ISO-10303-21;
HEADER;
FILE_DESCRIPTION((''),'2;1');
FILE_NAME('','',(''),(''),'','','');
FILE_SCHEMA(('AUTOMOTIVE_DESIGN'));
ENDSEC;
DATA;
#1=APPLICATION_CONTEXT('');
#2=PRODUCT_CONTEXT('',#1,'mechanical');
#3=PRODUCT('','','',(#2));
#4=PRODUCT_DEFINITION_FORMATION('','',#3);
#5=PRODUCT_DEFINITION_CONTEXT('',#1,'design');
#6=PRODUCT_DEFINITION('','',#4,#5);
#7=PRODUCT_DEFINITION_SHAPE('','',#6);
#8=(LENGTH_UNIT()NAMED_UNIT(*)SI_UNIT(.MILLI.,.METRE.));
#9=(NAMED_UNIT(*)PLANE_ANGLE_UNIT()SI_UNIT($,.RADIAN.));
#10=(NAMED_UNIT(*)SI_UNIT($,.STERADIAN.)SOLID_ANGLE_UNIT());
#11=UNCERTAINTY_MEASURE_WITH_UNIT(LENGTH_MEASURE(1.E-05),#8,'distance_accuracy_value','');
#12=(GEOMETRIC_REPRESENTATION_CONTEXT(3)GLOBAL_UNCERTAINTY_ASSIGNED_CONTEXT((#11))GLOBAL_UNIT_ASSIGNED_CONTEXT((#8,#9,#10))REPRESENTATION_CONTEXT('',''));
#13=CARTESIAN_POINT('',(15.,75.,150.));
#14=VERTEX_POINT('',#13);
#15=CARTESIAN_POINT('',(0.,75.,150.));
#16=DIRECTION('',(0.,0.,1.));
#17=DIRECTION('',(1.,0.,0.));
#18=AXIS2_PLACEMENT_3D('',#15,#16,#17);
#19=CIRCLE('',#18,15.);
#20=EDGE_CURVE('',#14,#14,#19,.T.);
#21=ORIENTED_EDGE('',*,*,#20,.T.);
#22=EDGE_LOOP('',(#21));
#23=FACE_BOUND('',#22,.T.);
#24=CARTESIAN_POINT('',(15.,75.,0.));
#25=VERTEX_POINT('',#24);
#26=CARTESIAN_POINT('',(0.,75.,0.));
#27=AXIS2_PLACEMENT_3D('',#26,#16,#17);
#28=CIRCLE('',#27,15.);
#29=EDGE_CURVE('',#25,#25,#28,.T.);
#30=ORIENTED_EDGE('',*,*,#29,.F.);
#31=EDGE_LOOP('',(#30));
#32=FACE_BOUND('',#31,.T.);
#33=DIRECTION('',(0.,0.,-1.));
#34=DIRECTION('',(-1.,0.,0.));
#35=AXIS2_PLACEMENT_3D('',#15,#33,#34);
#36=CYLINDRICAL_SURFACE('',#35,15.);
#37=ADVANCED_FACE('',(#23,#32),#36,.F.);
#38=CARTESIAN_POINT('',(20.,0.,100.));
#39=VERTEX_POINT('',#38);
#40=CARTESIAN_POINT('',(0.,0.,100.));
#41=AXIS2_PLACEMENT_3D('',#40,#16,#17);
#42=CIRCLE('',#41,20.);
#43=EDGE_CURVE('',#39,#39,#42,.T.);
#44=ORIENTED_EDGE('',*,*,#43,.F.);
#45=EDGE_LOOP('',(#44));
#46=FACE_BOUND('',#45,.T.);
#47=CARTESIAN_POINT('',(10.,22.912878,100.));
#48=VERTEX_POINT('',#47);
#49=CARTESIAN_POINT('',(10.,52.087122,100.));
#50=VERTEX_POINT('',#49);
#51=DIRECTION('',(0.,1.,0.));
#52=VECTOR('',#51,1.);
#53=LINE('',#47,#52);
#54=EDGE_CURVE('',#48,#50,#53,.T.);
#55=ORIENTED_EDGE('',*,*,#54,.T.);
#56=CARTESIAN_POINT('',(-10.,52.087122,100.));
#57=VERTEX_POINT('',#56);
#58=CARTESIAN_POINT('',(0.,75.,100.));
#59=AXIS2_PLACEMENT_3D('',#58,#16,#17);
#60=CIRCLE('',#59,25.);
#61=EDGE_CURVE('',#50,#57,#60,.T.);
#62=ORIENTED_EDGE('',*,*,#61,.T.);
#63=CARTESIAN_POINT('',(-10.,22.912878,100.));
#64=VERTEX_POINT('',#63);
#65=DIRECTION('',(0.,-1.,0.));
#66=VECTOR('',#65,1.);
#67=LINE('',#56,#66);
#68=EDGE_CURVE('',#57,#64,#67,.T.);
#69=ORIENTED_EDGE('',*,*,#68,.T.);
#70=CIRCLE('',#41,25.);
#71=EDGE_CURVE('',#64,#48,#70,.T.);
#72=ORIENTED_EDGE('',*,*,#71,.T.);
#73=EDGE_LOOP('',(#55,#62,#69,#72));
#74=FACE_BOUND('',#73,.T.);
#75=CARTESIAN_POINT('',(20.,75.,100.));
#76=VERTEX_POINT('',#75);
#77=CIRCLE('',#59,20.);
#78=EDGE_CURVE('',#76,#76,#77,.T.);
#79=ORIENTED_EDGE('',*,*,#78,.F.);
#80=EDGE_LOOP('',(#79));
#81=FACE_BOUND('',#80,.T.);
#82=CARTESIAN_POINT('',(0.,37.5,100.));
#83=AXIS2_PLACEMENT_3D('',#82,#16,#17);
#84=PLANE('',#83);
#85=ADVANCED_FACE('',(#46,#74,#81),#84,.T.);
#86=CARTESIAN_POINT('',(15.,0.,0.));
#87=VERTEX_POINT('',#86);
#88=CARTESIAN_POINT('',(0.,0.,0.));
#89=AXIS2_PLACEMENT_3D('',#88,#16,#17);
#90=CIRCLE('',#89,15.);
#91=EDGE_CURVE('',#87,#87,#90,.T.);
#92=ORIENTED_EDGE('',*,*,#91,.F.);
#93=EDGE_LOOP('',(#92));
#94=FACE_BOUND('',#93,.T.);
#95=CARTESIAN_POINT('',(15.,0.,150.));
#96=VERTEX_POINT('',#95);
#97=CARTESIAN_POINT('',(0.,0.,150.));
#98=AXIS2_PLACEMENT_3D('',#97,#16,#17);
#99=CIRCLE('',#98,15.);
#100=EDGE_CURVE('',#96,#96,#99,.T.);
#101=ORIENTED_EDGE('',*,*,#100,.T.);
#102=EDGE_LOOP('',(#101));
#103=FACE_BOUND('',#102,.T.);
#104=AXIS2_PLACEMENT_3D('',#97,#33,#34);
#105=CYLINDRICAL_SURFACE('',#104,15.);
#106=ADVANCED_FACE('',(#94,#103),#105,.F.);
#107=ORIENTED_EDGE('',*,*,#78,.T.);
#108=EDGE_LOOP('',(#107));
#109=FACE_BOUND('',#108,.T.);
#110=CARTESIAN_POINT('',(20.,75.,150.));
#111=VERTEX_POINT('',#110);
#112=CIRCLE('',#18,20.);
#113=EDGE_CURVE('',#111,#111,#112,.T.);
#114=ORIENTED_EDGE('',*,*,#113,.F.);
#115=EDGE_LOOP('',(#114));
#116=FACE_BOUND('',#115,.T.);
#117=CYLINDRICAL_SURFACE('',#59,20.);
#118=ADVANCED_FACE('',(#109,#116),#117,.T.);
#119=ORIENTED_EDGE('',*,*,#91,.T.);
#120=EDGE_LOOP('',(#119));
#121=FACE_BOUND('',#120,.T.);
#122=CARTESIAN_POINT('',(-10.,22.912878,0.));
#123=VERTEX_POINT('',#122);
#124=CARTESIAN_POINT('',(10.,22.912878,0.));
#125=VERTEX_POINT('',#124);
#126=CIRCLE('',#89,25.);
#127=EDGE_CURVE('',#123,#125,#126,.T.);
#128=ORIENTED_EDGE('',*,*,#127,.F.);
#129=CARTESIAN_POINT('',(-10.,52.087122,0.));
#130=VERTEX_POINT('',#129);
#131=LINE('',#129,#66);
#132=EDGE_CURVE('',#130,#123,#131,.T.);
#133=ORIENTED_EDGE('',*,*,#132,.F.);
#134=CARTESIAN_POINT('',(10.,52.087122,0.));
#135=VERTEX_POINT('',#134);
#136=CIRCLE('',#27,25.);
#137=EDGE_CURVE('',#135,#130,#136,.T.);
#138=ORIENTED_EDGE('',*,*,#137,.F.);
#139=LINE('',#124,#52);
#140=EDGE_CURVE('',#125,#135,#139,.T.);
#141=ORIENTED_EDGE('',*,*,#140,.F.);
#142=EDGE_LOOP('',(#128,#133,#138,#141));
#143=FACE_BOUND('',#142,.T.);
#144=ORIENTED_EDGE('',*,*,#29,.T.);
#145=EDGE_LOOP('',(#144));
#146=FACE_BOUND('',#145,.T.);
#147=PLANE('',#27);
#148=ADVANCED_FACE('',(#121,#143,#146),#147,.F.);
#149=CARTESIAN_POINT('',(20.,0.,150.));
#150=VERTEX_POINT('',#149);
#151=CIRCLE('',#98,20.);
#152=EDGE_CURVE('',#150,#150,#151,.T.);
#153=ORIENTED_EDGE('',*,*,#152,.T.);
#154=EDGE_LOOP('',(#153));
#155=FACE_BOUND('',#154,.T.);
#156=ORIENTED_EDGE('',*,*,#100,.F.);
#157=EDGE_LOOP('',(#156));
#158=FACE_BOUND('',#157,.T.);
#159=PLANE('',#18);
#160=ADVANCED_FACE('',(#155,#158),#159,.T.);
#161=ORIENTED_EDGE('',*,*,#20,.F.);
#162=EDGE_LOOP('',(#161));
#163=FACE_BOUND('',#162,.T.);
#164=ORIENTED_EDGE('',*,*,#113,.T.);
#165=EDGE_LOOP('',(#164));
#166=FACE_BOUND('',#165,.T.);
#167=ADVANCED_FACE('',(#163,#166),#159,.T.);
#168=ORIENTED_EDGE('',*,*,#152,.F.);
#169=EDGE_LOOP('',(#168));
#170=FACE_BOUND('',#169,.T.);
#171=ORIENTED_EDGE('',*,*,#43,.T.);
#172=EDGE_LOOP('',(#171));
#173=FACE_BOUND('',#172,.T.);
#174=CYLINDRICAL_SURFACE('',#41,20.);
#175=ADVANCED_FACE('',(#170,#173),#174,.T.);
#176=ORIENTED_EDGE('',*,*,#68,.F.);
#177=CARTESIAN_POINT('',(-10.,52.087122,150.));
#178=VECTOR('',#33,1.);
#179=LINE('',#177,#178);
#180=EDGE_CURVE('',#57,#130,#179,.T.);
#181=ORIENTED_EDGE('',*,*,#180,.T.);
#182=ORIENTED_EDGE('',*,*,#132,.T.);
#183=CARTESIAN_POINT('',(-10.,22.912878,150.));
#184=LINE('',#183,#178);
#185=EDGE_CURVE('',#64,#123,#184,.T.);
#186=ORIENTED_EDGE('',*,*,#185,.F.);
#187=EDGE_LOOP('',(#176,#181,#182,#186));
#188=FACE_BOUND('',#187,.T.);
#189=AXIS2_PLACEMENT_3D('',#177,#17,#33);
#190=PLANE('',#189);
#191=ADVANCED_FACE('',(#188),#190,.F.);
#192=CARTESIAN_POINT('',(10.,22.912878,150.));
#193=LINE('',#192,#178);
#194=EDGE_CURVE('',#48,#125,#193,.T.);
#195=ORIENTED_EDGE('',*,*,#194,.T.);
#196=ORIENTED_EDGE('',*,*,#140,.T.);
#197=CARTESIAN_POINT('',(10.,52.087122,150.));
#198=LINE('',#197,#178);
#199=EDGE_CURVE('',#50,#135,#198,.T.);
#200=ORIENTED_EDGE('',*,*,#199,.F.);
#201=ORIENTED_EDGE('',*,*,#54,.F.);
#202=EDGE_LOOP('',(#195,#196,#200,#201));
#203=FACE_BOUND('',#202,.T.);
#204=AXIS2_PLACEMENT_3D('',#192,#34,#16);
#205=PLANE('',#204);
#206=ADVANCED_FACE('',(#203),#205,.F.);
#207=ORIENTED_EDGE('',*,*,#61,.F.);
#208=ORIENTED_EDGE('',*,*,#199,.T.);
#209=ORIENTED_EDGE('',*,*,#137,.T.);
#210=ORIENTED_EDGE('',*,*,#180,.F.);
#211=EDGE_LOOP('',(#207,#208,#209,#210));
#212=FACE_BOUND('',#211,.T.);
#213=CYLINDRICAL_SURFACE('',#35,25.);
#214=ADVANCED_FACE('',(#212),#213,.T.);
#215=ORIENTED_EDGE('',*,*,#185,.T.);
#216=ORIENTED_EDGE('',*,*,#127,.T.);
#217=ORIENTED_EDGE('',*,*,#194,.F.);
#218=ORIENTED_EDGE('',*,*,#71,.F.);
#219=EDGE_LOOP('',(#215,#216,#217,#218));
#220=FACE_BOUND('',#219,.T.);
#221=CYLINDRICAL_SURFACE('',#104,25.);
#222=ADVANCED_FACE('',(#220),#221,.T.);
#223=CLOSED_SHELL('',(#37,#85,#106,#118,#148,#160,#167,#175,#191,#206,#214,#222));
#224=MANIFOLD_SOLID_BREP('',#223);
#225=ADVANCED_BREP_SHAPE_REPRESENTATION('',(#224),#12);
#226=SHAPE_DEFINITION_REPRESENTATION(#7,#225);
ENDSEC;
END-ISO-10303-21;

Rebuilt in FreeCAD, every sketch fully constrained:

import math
import FreeCAD as App
import Part
import Sketcher
from FreeCAD import Vector


def add_polygon(sketch, points):
    """Adds a closed chain of lines whose ends are joined by coincident constraints."""
    first, n = sketch.GeometryCount, len(points)
    for a, b in zip(points, points[1:] + points[:1]):
        sketch.addGeometry(Part.LineSegment(App.Vector(*a, 0), App.Vector(*b, 0)), False)
    for i in range(n):
        sketch.addConstraint(Sketcher.Constraint("Coincident", first + i, 2, first + (i + 1) % n, 1))

doc = App.newDocument("Part")
body = doc.addObject("PartDesign::Body", "Body")

# Sketch on XY plane
sketch1 = body.newObject("Sketcher::SketchObject", "Sketch")
sketch1.AttachmentSupport = (doc.getObject("XY_Plane"), [""])
sketch1.MapMode = "FlatFace"
sketch1.addGeometry([
    Part.LineSegment(Vector(-10, 52, 0), Vector(-10, 23, 0)),  # 0
    Part.ArcOfCircle(Part.Circle(Vector(0, 0, 0), Vector(0, 0, 1), 25), math.radians(114), math.radians(426)),  # 1
    Part.LineSegment(Vector(10, 23, 0), Vector(10, 52, 0)),  # 2
    Part.ArcOfCircle(Part.Circle(Vector(0, 75, 0), Vector(0, 0, 1), 25), math.radians(-66), math.radians(246)),  # 3
    Part.Circle(Vector(0, 0, 0), Vector(0, 0, 1), 15),  # 4
    Part.Circle(Vector(0, 75, 0), Vector(0, 0, 1), 15),  # 5
], False)
sketch1.addConstraint([
    Sketcher.Constraint("Coincident", 0, 2, 1, 1),
    Sketcher.Constraint("Coincident", 1, 2, 2, 1),
    Sketcher.Constraint("Coincident", 2, 2, 3, 1),
    Sketcher.Constraint("Coincident", 3, 2, 0, 1),
    Sketcher.Constraint("Vertical", 0),
    Sketcher.Constraint("Vertical", 2),
    Sketcher.Constraint("Coincident", 1, 3, -1, 1),
    Sketcher.Constraint("Coincident", 4, 3, -1, 1),
    Sketcher.Constraint("Coincident", 5, 3, 3, 3),
    Sketcher.Constraint("Equal", 1, 3),
    Sketcher.Constraint("Equal", 4, 5),
    Sketcher.Constraint("Symmetric", 2, 2, 3, 2, -2),
    Sketcher.Constraint("Diameter", 4, 30.0),
    Sketcher.Constraint("Radius", 1, 25.0),
    Sketcher.Constraint("DistanceY", -1, 1, 3, 3, 75.0),
    Sketcher.Constraint("DistanceX", 0, 2, -1, 1, 10.0),
])
pad1 = body.newObject("PartDesign::Pad", "Pad")
pad1.Profile = sketch1
pad1.Length = 150

# Sketch on XY plane
sketch2 = body.newObject("Sketcher::SketchObject", "Sketch001")
sketch2.AttachmentSupport = (doc.getObject("XY_Plane"), [""])
sketch2.MapMode = "FlatFace"
sketch2.AttachmentOffset = App.Placement(Vector(0, 0, 150), App.Rotation())
add_polygon(sketch2, [(-46, 121), (-46, -46), (46, -46), (46, 121)])  # lines 0-3
sketch2.addGeometry(Part.Circle(Vector(0, 0, 0), Vector(0, 0, 1), 20), False)  # 4
sketch2.addGeometry(Part.Circle(Vector(0, 75, 0), Vector(0, 0, 1), 20), False)  # 5
sketch2.addConstraint([
    Sketcher.Constraint("Vertical", 0),
    Sketcher.Constraint("Horizontal", 1),
    Sketcher.Constraint("Vertical", 2),
    Sketcher.Constraint("Horizontal", 3),
    Sketcher.Constraint("Coincident", 4, 3, -1, 1),
    Sketcher.Constraint("Equal", 4, 5),
    Sketcher.Constraint("PointOnObject", 5, 3, -2),
    Sketcher.Constraint("Diameter", 4, 40.0),
    Sketcher.Constraint("DistanceY", -1, 1, 5, 3, 75.0),
    Sketcher.Constraint("DistanceX", 1, 1, 1, 2, 92.312),
    Sketcher.Constraint("DistanceY", 0, 2, 0, 1, 167.312),
    Sketcher.Constraint("DistanceX", 0, 2, -1, 1, 46.156),
    Sketcher.Constraint("DistanceY", 0, 2, -1, 1, 46.156),
])
pocket1 = body.newObject("PartDesign::Pocket", "Pocket")
pocket1.Profile = sketch2
pocket1.Length = 50

doc.recompute()
